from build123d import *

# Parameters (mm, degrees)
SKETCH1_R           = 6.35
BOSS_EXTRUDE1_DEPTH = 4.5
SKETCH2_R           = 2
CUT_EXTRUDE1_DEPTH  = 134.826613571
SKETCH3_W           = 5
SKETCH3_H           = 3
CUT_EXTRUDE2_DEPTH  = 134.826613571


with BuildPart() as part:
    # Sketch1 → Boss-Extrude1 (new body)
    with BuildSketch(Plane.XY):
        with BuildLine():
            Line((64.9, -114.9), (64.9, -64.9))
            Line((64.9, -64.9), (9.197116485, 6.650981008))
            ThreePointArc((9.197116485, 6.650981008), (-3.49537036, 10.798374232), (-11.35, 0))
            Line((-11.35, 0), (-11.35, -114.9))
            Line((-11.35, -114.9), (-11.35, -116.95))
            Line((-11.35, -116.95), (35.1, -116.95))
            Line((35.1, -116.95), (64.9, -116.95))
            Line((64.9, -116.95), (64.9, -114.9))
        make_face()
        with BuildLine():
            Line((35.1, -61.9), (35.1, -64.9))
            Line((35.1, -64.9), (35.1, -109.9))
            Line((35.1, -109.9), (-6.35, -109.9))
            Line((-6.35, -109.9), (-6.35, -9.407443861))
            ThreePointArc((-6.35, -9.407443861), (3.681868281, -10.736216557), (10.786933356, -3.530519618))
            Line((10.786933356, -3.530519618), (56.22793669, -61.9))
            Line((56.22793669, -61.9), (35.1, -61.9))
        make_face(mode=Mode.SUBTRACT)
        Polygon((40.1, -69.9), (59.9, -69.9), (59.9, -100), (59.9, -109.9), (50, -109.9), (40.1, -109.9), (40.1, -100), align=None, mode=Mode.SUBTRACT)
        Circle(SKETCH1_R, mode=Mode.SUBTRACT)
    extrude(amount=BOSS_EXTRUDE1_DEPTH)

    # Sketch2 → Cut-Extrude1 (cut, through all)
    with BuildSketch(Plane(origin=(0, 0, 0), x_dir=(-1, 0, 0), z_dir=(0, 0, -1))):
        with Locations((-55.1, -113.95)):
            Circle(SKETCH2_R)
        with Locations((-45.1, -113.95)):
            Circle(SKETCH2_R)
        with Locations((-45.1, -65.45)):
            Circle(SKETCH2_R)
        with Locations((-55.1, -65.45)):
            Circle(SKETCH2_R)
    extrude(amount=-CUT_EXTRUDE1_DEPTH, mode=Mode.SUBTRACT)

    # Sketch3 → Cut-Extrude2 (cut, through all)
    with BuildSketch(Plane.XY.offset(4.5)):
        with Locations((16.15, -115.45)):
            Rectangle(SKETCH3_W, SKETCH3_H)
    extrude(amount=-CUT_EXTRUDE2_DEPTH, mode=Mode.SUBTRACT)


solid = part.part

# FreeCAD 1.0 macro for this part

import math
import FreeCAD as App
import Part
import Sketcher

doc = App.newDocument("Part")
body = doc.addObject("PartDesign::Body", "Body")

# Sketch on XY plane
sketch1 = doc.addObject("Sketcher::SketchObject", "Sketch")
body.addObject(sketch1)
sketch1.AttachmentSupport = (doc.XY_Plane, [""])
sketch1.MapMode = "FlatFace"
sketch1.addGeometry([
    Part.LineSegment(App.Vector(65, -65, 0), App.Vector(9, 7, 0)),  # 0
    Part.ArcOfCircle(Part.Circle(App.Vector(0, 0, 0), App.Vector(0, 0, 1), 11), math.radians(36), math.radians(180)),  # 1
    Part.LineSegment(App.Vector(-11, 0, 0), App.Vector(-11, -117, 0)),  # 2
    Part.LineSegment(App.Vector(-11, -117, 0), App.Vector(65, -117, 0)),  # 3
    Part.LineSegment(App.Vector(65, -117, 0), App.Vector(65, -65, 0)),  # 4
    Part.LineSegment(App.Vector(56, -62, 0), App.Vector(35, -62, 0)),  # 5
    Part.LineSegment(App.Vector(35, -62, 0), App.Vector(35, -110, 0)),  # 6
    Part.LineSegment(App.Vector(35, -110, 0), App.Vector(-6, -110, 0)),  # 7
    Part.LineSegment(App.Vector(-6, -110, 0), App.Vector(-6, -9, 0)),  # 8
    Part.ArcOfCircle(Part.Circle(App.Vector(0, 0, 0), App.Vector(0, 0, 1), 11), math.radians(-124), math.radians(-18)),  # 9
    Part.LineSegment(App.Vector(11, -4, 0), App.Vector(56, -62, 0)),  # 10
    Part.LineSegment(App.Vector(40, -110, 0), App.Vector(40, -70, 0)),  # 11
    Part.LineSegment(App.Vector(40, -70, 0), App.Vector(60, -70, 0)),  # 12
    Part.LineSegment(App.Vector(60, -70, 0), App.Vector(60, -110, 0)),  # 13
    Part.LineSegment(App.Vector(60, -110, 0), App.Vector(40, -110, 0)),  # 14
    Part.Circle(App.Vector(0, 0, 0), App.Vector(0, 0, 1), 6),  # 15
], False)
sketch1.addConstraint([
    Sketcher.Constraint("Coincident", 0, 2, 1, 1),
    Sketcher.Constraint("Tangent", 1, 2, 2, 1),
    Sketcher.Constraint("Coincident", 2, 2, 3, 1),
    Sketcher.Constraint("Coincident", 3, 2, 4, 1),
    Sketcher.Constraint("Coincident", 4, 2, 0, 1),
    Sketcher.Constraint("Coincident", 5, 2, 6, 1),
    Sketcher.Constraint("Coincident", 6, 2, 7, 1),
    Sketcher.Constraint("Coincident", 7, 2, 8, 1),
    Sketcher.Constraint("Coincident", 8, 2, 9, 1),
    Sketcher.Constraint("Coincident", 9, 2, 10, 1),
    Sketcher.Constraint("Coincident", 10, 2, 5, 1),
    Sketcher.Constraint("Coincident", 11, 2, 12, 1),
    Sketcher.Constraint("Coincident", 12, 2, 13, 1),
    Sketcher.Constraint("Coincident", 13, 2, 14, 1),
    Sketcher.Constraint("Coincident", 14, 2, 11, 1),
    Sketcher.Constraint("Vertical", 2),
    Sketcher.Constraint("Horizontal", 3),
    Sketcher.Constraint("Vertical", 4),
    Sketcher.Constraint("Horizontal", 5),
    Sketcher.Constraint("Vertical", 6),
    Sketcher.Constraint("Horizontal", 7),
    Sketcher.Constraint("Vertical", 8),
    Sketcher.Constraint("Vertical", 11),
    Sketcher.Constraint("Horizontal", 12),
    Sketcher.Constraint("Vertical", 13),
    Sketcher.Constraint("Horizontal", 14),
    Sketcher.Constraint("Coincident", 1, 3, -1, 1),
    Sketcher.Constraint("Coincident", 9, 3, -1, 1),
    Sketcher.Constraint("Coincident", 15, 3, -1, 1),
    Sketcher.Constraint("Equal", 1, 9),
    Sketcher.Constraint("Parallel", 0, 10),
    Sketcher.Constraint("Horizontal", 7, 2, 13, 2),
    Sketcher.Constraint("Diameter", 15, 12.7),
    Sketcher.Constraint("DistanceY", 6, 2, 6, 1, 48.0),
    Sketcher.Constraint("DistanceY", 11, 1, 11, 2, 40.0),
    Sketcher.Constraint("Radius", 1, 11.35),
    Sketcher.Constraint("DistanceX", 12, 1, 12, 2, 19.8),
    Sketcher.Constraint("DistanceY", 4, 2, 5, 2, 3.0),
    Sketcher.Constraint("DistanceX", 2, 2, 7, 2, 5.0),
    Sketcher.Constraint("DistanceX", 5, 2, 11, 2, 5.0),
    Sketcher.Constraint("DistanceX", 12, 2, 4, 2, 5.0),
    Sketcher.Constraint("DistanceX", 3, 1, 3, 2, 76.25),
    Sketcher.Constraint("DistanceY", 2, 2, 2, 1, 116.95),
    Sketcher.Constraint("DistanceY", 4, 1, 4, 2, 52.05),
    Sketcher.Constraint("DistanceY", 9, 2, 0, 2, 10.181501),
    Sketcher.Constraint("DistanceX", 5, 2, 5, 1, 21.127937),
])
pad1 = doc.addObject("PartDesign::Pad", "Pad")
body.addObject(pad1)
pad1.Profile = sketch1
pad1.Length = 4.5

# Sketch on XY plane
sketch2 = doc.addObject("Sketcher::SketchObject", "Sketch001")
body.addObject(sketch2)
sketch2.AttachmentSupport = (doc.XY_Plane, [""])
sketch2.MapMode = "FlatFace"
sketch2.addGeometry([
    Part.Circle(App.Vector(55.1, -114, 0), App.Vector(0, 0, 1), 2),
    Part.Circle(App.Vector(45.1, -114, 0), App.Vector(0, 0, 1), 2),
    Part.Circle(App.Vector(45.1, -65.5, 0), App.Vector(0, 0, 1), 2),
    Part.Circle(App.Vector(55.1, -65.5, 0), App.Vector(0, 0, 1), 2),
], False)
sketch2.addConstraint([
    Sketcher.Constraint("Equal", 0, 1),
    Sketcher.Constraint("Equal", 1, 2),
    Sketcher.Constraint("Equal", 2, 3),
    Sketcher.Constraint("Horizontal", 0, 3, 1, 3),
    Sketcher.Constraint("Horizontal", 2, 3, 3, 3),
    Sketcher.Constraint("Vertical", 1, 3, 2, 3),
    Sketcher.Constraint("Vertical", 0, 3, 3, 3),
    Sketcher.Constraint("Diameter", 0, 4.0),
    Sketcher.Constraint("DistanceX", 1, 3, 0, 3, 10.0),
    Sketcher.Constraint("DistanceX", -1, 1, 0, 3, 55.1),
    Sketcher.Constraint("DistanceY", 1, 3, 2, 3, 48.5),
    Sketcher.Constraint("DistanceY", 0, 3, -1, 1, 113.95),
])
pocket1 = doc.addObject("PartDesign::Pocket", "Pocket")
body.addObject(pocket1)
pocket1.Profile = sketch2
pocket1.Type = "ThroughAll"
pocket1.Reversed = True

# Sketch on XY plane
sketch3 = doc.addObject("Sketcher::SketchObject", "Sketch002")
body.addObject(sketch3)
sketch3.AttachmentSupport = (doc.XY_Plane, [""])
sketch3.MapMode = "FlatFace"
sketch3.AttachmentOffset = App.Placement(App.Vector(0, 0, 4.5), App.Rotation())
sketch3.addGeometry([
    Part.LineSegment(App.Vector(13.7, -114, 0), App.Vector(13.7, -117, 0)),
    Part.LineSegment(App.Vector(13.7, -117, 0), App.Vector(18.6, -117, 0)),
    Part.LineSegment(App.Vector(18.6, -117, 0), App.Vector(18.6, -114, 0)),
    Part.LineSegment(App.Vector(18.6, -114, 0), App.Vector(13.7, -114, 0)),
], False)
sketch3.addConstraint([
    Sketcher.Constraint("Coincident", 0, 2, 1, 1),
    Sketcher.Constraint("Coincident", 1, 2, 2, 1),
    Sketcher.Constraint("Coincident", 2, 2, 3, 1),
    Sketcher.Constraint("Coincident", 3, 2, 0, 1),
    Sketcher.Constraint("Vertical", 0),
    Sketcher.Constraint("Horizontal", 1),
    Sketcher.Constraint("Vertical", 2),
    Sketcher.Constraint("Horizontal", 3),
    Sketcher.Constraint("DistanceX", 1, 1, 1, 2, 5.0),
    Sketcher.Constraint("DistanceY", 0, 2, 0, 1, 3.0),
    Sketcher.Constraint("DistanceX", -1, 1, 0, 2, 13.65),
    Sketcher.Constraint("DistanceY", 0, 2, -1, 1, 116.95),
])
pocket2 = doc.addObject("PartDesign::Pocket", "Pocket001")
body.addObject(pocket2)
pocket2.Profile = sketch3
pocket2.Type = "ThroughAll"

doc.recompute()
